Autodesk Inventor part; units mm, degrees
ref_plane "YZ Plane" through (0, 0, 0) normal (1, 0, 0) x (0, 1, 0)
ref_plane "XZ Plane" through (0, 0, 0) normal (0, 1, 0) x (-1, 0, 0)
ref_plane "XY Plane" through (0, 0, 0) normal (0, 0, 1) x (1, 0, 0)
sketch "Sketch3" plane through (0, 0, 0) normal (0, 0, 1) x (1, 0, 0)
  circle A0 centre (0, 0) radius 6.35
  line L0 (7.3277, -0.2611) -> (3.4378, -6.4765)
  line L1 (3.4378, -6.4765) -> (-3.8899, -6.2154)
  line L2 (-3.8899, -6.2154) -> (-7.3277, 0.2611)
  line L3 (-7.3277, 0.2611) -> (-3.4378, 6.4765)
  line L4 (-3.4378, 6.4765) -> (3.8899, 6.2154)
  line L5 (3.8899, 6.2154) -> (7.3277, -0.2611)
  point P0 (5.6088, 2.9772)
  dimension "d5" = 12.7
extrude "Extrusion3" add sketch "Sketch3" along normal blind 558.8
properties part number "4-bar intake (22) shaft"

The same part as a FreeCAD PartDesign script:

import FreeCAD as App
import Part
import Sketcher

V = App.Vector
Q = App.Units.Quantity


def add_polygon(sketch, points):
    """Adds a closed chain of lines whose ends are joined by coincident constraints."""
    first, n = sketch.GeometryCount, len(points)
    for a, b in zip(points, points[1:] + points[:1]):
        sketch.addGeometry(Part.LineSegment(App.Vector(*a, 0), App.Vector(*b, 0)), False)
    for i in range(n):
        sketch.addConstraint(Sketcher.Constraint("Coincident", first + i, 2, first + (i + 1) % n, 1))

doc = App.newDocument("Part")
body = doc.addObject("PartDesign::Body", "Body")

sketch1 = body.newObject("Sketcher::SketchObject", "Sketch")
sketch1.AttachmentSupport = (doc.getObject("XY_Plane"), [""])
sketch1.MapMode = "FlatFace"
add_polygon(sketch1, [(7, 0), (4, 6), (-3, 6), (-7, 0), (-4, -6), (3, -6)])
sketch1.addConstraint([
    Sketcher.Constraint("Symmetric", 0, 2, 3, 2, -1, 1),
    Sketcher.Constraint("Symmetric", 1, 2, 4, 2, -1, 1),
    Sketcher.Constraint("Symmetric", 2, 2, 5, 2, -1, 1),
    Sketcher.Constraint("Equal", 0, 1),
    Sketcher.Constraint("Equal", 1, 2),
    Sketcher.Constraint("Angle", 0, Q("117.9599 deg")),
    Sketcher.Constraint("Angle", 1, Q("177.9593 deg")),
    Sketcher.Constraint("Angle", 2, Q("-122.0403 deg")),
    Sketcher.Constraint("DistanceY", -1, 1, 0, 2, Q("0.2447 in")),
])
pad1 = body.newObject("PartDesign::Pad", "Pad")
pad1.Profile = sketch1
pad1.Length = Q("22 in")

doc.recompute()
